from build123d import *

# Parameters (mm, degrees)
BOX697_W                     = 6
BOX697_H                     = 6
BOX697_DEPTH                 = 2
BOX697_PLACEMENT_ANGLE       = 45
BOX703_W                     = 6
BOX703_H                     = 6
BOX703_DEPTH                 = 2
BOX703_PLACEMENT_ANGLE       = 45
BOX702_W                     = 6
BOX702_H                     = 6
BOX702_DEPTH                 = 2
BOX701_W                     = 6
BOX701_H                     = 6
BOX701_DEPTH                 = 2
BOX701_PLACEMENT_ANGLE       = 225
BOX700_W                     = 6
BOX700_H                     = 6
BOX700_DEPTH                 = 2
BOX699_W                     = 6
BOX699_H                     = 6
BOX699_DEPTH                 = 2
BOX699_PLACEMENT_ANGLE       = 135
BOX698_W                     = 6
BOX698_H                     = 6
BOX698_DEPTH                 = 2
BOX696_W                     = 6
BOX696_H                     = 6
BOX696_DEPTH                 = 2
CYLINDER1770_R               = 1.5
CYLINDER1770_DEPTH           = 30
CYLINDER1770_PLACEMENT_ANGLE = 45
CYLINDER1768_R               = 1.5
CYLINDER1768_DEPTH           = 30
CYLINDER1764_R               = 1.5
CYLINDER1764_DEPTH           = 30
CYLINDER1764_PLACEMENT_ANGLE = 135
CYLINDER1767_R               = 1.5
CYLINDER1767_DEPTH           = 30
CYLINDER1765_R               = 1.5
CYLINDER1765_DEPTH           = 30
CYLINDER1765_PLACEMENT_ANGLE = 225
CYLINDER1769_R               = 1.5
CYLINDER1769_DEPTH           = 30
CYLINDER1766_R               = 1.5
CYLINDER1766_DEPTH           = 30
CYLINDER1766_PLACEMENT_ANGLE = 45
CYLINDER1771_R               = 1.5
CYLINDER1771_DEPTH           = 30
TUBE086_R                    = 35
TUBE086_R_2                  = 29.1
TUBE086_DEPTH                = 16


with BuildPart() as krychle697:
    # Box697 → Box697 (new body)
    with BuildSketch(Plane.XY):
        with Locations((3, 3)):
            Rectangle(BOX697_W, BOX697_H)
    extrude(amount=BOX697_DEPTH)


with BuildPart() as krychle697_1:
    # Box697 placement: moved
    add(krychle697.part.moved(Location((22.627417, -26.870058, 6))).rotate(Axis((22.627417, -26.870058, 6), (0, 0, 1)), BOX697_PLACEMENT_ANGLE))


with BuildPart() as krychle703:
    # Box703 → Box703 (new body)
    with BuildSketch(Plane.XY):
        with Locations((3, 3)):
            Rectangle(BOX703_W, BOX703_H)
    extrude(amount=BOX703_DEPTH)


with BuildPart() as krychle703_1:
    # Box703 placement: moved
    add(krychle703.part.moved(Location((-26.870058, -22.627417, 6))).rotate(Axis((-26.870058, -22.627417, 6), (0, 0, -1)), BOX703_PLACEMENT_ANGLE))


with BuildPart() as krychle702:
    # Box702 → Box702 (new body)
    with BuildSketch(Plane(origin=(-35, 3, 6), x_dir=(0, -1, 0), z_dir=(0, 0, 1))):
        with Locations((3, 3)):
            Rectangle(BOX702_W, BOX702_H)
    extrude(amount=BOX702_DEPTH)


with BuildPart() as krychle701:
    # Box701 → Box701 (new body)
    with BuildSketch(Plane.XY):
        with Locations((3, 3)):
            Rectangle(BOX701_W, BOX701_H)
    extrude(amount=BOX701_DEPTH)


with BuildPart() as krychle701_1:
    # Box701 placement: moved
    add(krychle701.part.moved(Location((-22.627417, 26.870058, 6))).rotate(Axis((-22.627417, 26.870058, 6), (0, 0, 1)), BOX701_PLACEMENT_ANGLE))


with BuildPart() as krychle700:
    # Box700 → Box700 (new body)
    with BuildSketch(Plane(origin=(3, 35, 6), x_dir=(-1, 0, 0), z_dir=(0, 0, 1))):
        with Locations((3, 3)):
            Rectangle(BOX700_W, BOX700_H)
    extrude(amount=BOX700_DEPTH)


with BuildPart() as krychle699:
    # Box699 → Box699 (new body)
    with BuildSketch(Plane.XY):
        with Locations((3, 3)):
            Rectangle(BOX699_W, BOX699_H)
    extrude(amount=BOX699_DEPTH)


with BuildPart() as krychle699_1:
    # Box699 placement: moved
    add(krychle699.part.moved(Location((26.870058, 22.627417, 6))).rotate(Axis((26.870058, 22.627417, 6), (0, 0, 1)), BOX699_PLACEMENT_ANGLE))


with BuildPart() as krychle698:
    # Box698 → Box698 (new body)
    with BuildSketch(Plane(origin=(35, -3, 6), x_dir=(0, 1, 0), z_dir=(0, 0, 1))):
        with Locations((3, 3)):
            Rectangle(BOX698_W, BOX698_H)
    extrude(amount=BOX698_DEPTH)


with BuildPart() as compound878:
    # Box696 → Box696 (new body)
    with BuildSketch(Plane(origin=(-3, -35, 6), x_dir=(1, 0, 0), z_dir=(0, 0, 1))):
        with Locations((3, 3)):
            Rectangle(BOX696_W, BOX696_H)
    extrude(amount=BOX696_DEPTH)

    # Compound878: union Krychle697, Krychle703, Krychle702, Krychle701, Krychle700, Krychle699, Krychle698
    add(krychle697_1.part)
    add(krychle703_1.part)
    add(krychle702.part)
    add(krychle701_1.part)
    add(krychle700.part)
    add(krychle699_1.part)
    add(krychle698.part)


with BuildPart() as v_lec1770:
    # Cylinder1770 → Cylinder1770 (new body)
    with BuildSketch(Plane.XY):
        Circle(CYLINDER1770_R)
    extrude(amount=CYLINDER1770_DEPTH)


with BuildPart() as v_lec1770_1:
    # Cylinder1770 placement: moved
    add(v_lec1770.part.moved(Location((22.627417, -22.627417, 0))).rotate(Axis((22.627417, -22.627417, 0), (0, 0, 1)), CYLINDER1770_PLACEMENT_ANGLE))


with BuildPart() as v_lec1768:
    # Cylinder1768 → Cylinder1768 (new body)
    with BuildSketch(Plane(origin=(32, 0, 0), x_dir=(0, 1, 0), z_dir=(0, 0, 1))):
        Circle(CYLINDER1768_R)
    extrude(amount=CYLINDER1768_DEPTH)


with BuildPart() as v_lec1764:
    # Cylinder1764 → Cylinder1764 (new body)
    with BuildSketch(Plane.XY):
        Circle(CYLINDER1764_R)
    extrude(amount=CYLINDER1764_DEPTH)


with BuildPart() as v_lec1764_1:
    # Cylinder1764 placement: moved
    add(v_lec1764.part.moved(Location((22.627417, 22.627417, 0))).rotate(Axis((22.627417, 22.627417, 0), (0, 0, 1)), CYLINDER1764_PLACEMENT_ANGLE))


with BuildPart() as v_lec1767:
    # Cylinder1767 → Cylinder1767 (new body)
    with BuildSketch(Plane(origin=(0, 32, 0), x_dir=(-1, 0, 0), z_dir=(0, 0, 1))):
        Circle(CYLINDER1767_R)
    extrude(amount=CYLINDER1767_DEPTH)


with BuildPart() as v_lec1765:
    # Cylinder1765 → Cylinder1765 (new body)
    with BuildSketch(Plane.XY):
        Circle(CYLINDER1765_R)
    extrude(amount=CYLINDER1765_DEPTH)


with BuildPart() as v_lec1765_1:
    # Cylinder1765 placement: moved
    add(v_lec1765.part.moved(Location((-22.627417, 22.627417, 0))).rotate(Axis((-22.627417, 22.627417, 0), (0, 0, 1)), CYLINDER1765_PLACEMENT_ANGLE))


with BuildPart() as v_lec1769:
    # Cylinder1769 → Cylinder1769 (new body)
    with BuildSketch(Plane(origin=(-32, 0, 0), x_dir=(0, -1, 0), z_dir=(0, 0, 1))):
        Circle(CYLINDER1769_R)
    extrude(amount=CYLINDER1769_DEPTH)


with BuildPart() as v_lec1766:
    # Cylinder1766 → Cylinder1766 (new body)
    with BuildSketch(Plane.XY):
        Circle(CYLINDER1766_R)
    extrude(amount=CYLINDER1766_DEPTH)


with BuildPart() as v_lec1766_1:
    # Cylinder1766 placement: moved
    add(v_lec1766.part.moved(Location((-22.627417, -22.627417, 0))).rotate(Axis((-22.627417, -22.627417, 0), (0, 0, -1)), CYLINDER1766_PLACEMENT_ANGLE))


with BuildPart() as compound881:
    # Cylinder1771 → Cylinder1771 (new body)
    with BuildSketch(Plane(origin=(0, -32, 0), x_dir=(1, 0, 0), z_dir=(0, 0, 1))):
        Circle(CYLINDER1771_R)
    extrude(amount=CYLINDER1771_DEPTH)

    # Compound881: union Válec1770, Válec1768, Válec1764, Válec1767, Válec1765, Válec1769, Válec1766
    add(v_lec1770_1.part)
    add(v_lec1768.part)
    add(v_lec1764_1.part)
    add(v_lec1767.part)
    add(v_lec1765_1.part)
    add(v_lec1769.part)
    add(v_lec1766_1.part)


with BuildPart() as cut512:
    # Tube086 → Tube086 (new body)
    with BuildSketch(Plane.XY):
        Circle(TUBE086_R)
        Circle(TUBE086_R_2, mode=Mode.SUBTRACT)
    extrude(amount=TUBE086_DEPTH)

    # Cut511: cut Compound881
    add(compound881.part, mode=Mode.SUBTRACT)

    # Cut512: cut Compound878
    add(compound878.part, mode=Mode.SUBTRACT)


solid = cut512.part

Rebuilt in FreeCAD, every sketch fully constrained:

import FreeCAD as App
import Part
import Sketcher

V = App.Vector


def add_polygon(sketch, points):
    """Adds a closed chain of lines whose ends are joined by coincident constraints."""
    first, n = sketch.GeometryCount, len(points)
    for a, b in zip(points, points[1:] + points[:1]):
        sketch.addGeometry(Part.LineSegment(App.Vector(*a, 0), App.Vector(*b, 0)), False)
    for i in range(n):
        sketch.addConstraint(Sketcher.Constraint("Coincident", first + i, 2, first + (i + 1) % n, 1))

doc = App.newDocument("Part")
body = doc.addObject("PartDesign::Body", "Body")

sketch1 = doc.addObject("Sketcher::SketchObject", "Sketch")
body.addObject(sketch1)
sketch1.AttachmentSupport = (doc.XY_Plane, [""])
sketch1.MapMode = "FlatFace"
add_polygon(sketch1, [(0, 6), (0, 0), (6, 0), (6, 6)])
sketch1.addConstraint([
    Sketcher.Constraint("Vertical", 0),
    Sketcher.Constraint("Horizontal", 1),
    Sketcher.Constraint("Vertical", 2),
    Sketcher.Constraint("Horizontal", 3),
    Sketcher.Constraint("Coincident", 0, 2, -1, 1),
    Sketcher.Constraint("Equal", 3, 0),
    Sketcher.Constraint("DistanceX", 1, 1, 1, 2, 6.0),
])
pad1 = doc.addObject("PartDesign::Pad", "Pad")
body.addObject(pad1)
pad1.Profile = sketch1
pad1.Length = 2
body2 = doc.addObject("PartDesign::Body", "Body001")
doc.recompute()

body.Placement = App.Placement(V(22.627417, -26.870058, 6), App.Rotation(V(0, 0, 1), 45))
boolean = doc.addObject("PartDesign::Boolean", "Boolean")
body2.addObject(boolean)
boolean.Type = "Fuse"
boolean.addObjects([body])
body3 = doc.addObject("PartDesign::Body", "Body002")

sketch2 = doc.addObject("Sketcher::SketchObject", "Sketch001")
body3.addObject(sketch2)
sketch2.AttachmentSupport = (doc.getObject("XY_Plane002"), [""])
sketch2.MapMode = "FlatFace"
add_polygon(sketch2, [(0, 6), (0, 0), (6, 0), (6, 6)])
sketch2.addConstraint([
    Sketcher.Constraint("Vertical", 0),
    Sketcher.Constraint("Horizontal", 1),
    Sketcher.Constraint("Vertical", 2),
    Sketcher.Constraint("Horizontal", 3),
    Sketcher.Constraint("Coincident", 0, 2, -1, 1),
    Sketcher.Constraint("Equal", 3, 0),
    Sketcher.Constraint("DistanceX", 1, 1, 1, 2, 6.0),
])
pad2 = doc.addObject("PartDesign::Pad", "Pad001")
body3.addObject(pad2)
pad2.Profile = sketch2
pad2.Length = 2
body4 = doc.addObject("PartDesign::Body", "Body003")
doc.recompute()

body3.Placement = App.Placement(V(-26.870058, -22.627417, 6), App.Rotation(V(0, 0, -1), 45))
boolean2 = doc.addObject("PartDesign::Boolean", "Boolean001")
body4.addObject(boolean2)
boolean2.Type = "Fuse"
boolean2.addObjects([body3])
body5 = doc.addObject("PartDesign::Body", "Body004")

sketch3 = doc.addObject("Sketcher::SketchObject", "Sketch002")
body5.addObject(sketch3)
sketch3.AttachmentSupport = (doc.getObject("XY_Plane004"), [""])
sketch3.MapMode = "FlatFace"
sketch3.AttachmentOffset = App.Placement(V(0, 0, 6), App.Rotation())
add_polygon(sketch3, [(-29, 3), (-35, 3), (-35, -3), (-29, -3)])
sketch3.addConstraint([
    Sketcher.Constraint("Horizontal", 0),
    Sketcher.Constraint("Vertical", 1),
    Sketcher.Constraint("Horizontal", 2),
    Sketcher.Constraint("Vertical", 3),
    Sketcher.Constraint("Equal", 2, 1),
    Sketcher.Constraint("DistanceX", 0, 2, 0, 1, 6.0),
    Sketcher.Constraint("DistanceX", 0, 2, -1, 1, 35.0),
    Sketcher.Constraint("DistanceY", -1, 1, 0, 2, 3.0),
])
pad3 = doc.addObject("PartDesign::Pad", "Pad002")
body5.addObject(pad3)
pad3.Profile = sketch3
pad3.Length = 2
body6 = doc.addObject("PartDesign::Body", "Body005")

sketch4 = doc.addObject("Sketcher::SketchObject", "Sketch003")
body6.addObject(sketch4)
sketch4.AttachmentSupport = (doc.getObject("XY_Plane005"), [""])
sketch4.MapMode = "FlatFace"
add_polygon(sketch4, [(0, 6), (0, 0), (6, 0), (6, 6)])
sketch4.addConstraint([
    Sketcher.Constraint("Vertical", 0),
    Sketcher.Constraint("Horizontal", 1),
    Sketcher.Constraint("Vertical", 2),
    Sketcher.Constraint("Horizontal", 3),
    Sketcher.Constraint("Coincident", 0, 2, -1, 1),
    Sketcher.Constraint("Equal", 3, 0),
    Sketcher.Constraint("DistanceX", 1, 1, 1, 2, 6.0),
])
pad4 = doc.addObject("PartDesign::Pad", "Pad003")
body6.addObject(pad4)
pad4.Profile = sketch4
pad4.Length = 2
body7 = doc.addObject("PartDesign::Body", "Body006")
doc.recompute()

body6.Placement = App.Placement(V(-22.627417, 26.870058, 6), App.Rotation(V(0, 0, 1), 225))
boolean3 = doc.addObject("PartDesign::Boolean", "Boolean002")
body7.addObject(boolean3)
boolean3.Type = "Fuse"
boolean3.addObjects([body6])
body8 = doc.addObject("PartDesign::Body", "Body007")

sketch5 = doc.addObject("Sketcher::SketchObject", "Sketch004")
body8.addObject(sketch5)
sketch5.AttachmentSupport = (doc.getObject("XY_Plane007"), [""])
sketch5.MapMode = "FlatFace"
sketch5.AttachmentOffset = App.Placement(V(0, 0, 6), App.Rotation())
add_polygon(sketch5, [(3, 29), (3, 35), (-3, 35), (-3, 29)])
sketch5.addConstraint([
    Sketcher.Constraint("Vertical", 0),
    Sketcher.Constraint("Horizontal", 1),
    Sketcher.Constraint("Vertical", 2),
    Sketcher.Constraint("Horizontal", 3),
    Sketcher.Constraint("Equal", 3, 0),
    Sketcher.Constraint("DistanceX", 1, 2, 1, 1, 6.0),
    Sketcher.Constraint("DistanceX", -1, 1, 0, 2, 3.0),
    Sketcher.Constraint("DistanceY", -1, 1, 0, 2, 35.0),
])
pad5 = doc.addObject("PartDesign::Pad", "Pad004")
body8.addObject(pad5)
pad5.Profile = sketch5
pad5.Length = 2
body9 = doc.addObject("PartDesign::Body", "Body008")

sketch6 = doc.addObject("Sketcher::SketchObject", "Sketch005")
body9.addObject(sketch6)
sketch6.AttachmentSupport = (doc.getObject("XY_Plane008"), [""])
sketch6.MapMode = "FlatFace"
add_polygon(sketch6, [(0, 6), (0, 0), (6, 0), (6, 6)])
sketch6.addConstraint([
    Sketcher.Constraint("Vertical", 0),
    Sketcher.Constraint("Horizontal", 1),
    Sketcher.Constraint("Vertical", 2),
    Sketcher.Constraint("Horizontal", 3),
    Sketcher.Constraint("Coincident", 0, 2, -1, 1),
    Sketcher.Constraint("Equal", 3, 0),
    Sketcher.Constraint("DistanceX", 1, 1, 1, 2, 6.0),
])
pad6 = doc.addObject("PartDesign::Pad", "Pad005")
body9.addObject(pad6)
pad6.Profile = sketch6
pad6.Length = 2
body10 = doc.addObject("PartDesign::Body", "Body009")
doc.recompute()

body9.Placement = App.Placement(V(26.870058, 22.627417, 6), App.Rotation(V(0, 0, 1), 135))
boolean4 = doc.addObject("PartDesign::Boolean", "Boolean003")
body10.addObject(boolean4)
boolean4.Type = "Fuse"
boolean4.addObjects([body9])
body11 = doc.addObject("PartDesign::Body", "Body010")

sketch7 = doc.addObject("Sketcher::SketchObject", "Sketch006")
body11.addObject(sketch7)
sketch7.AttachmentSupport = (doc.getObject("XY_Plane010"), [""])
sketch7.MapMode = "FlatFace"
sketch7.AttachmentOffset = App.Placement(V(0, 0, 6), App.Rotation())
add_polygon(sketch7, [(29, -3), (35, -3), (35, 3), (29, 3)])
sketch7.addConstraint([
    Sketcher.Constraint("Horizontal", 0),
    Sketcher.Constraint("Vertical", 1),
    Sketcher.Constraint("Horizontal", 2),
    Sketcher.Constraint("Vertical", 3),
    Sketcher.Constraint("Equal", 2, 1),
    Sketcher.Constraint("DistanceX", 0, 1, 0, 2, 6.0),
    Sketcher.Constraint("DistanceX", -1, 1, 0, 2, 35.0),
    Sketcher.Constraint("DistanceY", 0, 2, -1, 1, 3.0),
])
pad7 = doc.addObject("PartDesign::Pad", "Pad006")
body11.addObject(pad7)
pad7.Profile = sketch7
pad7.Length = 2
body12 = doc.addObject("PartDesign::Body", "Body011")
body12.AllowCompound = True

sketch8 = doc.addObject("Sketcher::SketchObject", "Sketch007")
body12.addObject(sketch8)
sketch8.AttachmentSupport = (doc.getObject("XY_Plane011"), [""])
sketch8.MapMode = "FlatFace"
sketch8.AttachmentOffset = App.Placement(V(0, 0, 6), App.Rotation())
add_polygon(sketch8, [(-3, -29), (-3, -35), (3, -35), (3, -29)])
sketch8.addConstraint([
    Sketcher.Constraint("Vertical", 0),
    Sketcher.Constraint("Horizontal", 1),
    Sketcher.Constraint("Vertical", 2),
    Sketcher.Constraint("Horizontal", 3),
    Sketcher.Constraint("Equal", 3, 0),
    Sketcher.Constraint("DistanceX", 1, 1, 1, 2, 6.0),
    Sketcher.Constraint("DistanceX", 0, 2, -1, 1, 3.0),
    Sketcher.Constraint("DistanceY", 0, 2, -1, 1, 35.0),
])
pad8 = doc.addObject("PartDesign::Pad", "Pad007")
body12.addObject(pad8)
pad8.Profile = sketch8
pad8.Length = 2
doc.recompute()

boolean5 = doc.addObject("PartDesign::Boolean", "Boolean004")
body12.addObject(boolean5)
boolean5.Type = "Fuse"
boolean5.addObjects([body2])
doc.recompute()

boolean6 = doc.addObject("PartDesign::Boolean", "Boolean005")
body12.addObject(boolean6)
boolean6.Type = "Fuse"
boolean6.addObjects([body4])
doc.recompute()

boolean7 = doc.addObject("PartDesign::Boolean", "Boolean006")
body12.addObject(boolean7)
boolean7.Type = "Fuse"
boolean7.addObjects([body5])
doc.recompute()

boolean8 = doc.addObject("PartDesign::Boolean", "Boolean007")
body12.addObject(boolean8)
boolean8.Type = "Fuse"
boolean8.addObjects([body7])
doc.recompute()

boolean9 = doc.addObject("PartDesign::Boolean", "Boolean008")
body12.addObject(boolean9)
boolean9.Type = "Fuse"
boolean9.addObjects([body8])
doc.recompute()

boolean10 = doc.addObject("PartDesign::Boolean", "Boolean009")
body12.addObject(boolean10)
boolean10.Type = "Fuse"
boolean10.addObjects([body10])
doc.recompute()

boolean11 = doc.addObject("PartDesign::Boolean", "Boolean010")
body12.addObject(boolean11)
boolean11.Type = "Fuse"
boolean11.addObjects([body11])
body13 = doc.addObject("PartDesign::Body", "Body012")

sketch9 = doc.addObject("Sketcher::SketchObject", "Sketch008")
body13.addObject(sketch9)
sketch9.AttachmentSupport = (doc.getObject("XY_Plane012"), [""])
sketch9.MapMode = "FlatFace"
sketch9.addGeometry(Part.Circle(V(0, 0, 0), V(0, 0, 1), 1.5), False)
sketch9.addConstraint([
    Sketcher.Constraint("Coincident", 0, 3, -1, 1),
    Sketcher.Constraint("Diameter", 0, 3.0),
])
pad9 = doc.addObject("PartDesign::Pad", "Pad008")
body13.addObject(pad9)
pad9.Profile = sketch9
pad9.Length = 30
body14 = doc.addObject("PartDesign::Body", "Body013")
doc.recompute()

body13.Placement = App.Placement(V(22.627417, -22.627417, 0), App.Rotation(V(0, 0, 1), 45))
boolean12 = doc.addObject("PartDesign::Boolean", "Boolean011")
body14.addObject(boolean12)
boolean12.Type = "Fuse"
boolean12.addObjects([body13])
body15 = doc.addObject("PartDesign::Body", "Body014")

sketch10 = doc.addObject("Sketcher::SketchObject", "Sketch009")
body15.addObject(sketch10)
sketch10.AttachmentSupport = (doc.getObject("XY_Plane014"), [""])
sketch10.MapMode = "FlatFace"
sketch10.addGeometry(Part.Circle(V(32, 0, 0), V(0, 0, 1), 1.5), False)
sketch10.addConstraint([
    Sketcher.Constraint("PointOnObject", 0, 3, -1),
    Sketcher.Constraint("Diameter", 0, 3.0),
    Sketcher.Constraint("DistanceX", -1, 1, 0, 3, 32.0),
])
pad10 = doc.addObject("PartDesign::Pad", "Pad009")
body15.addObject(pad10)
pad10.Profile = sketch10
pad10.Length = 30
body16 = doc.addObject("PartDesign::Body", "Body015")

sketch11 = doc.addObject("Sketcher::SketchObject", "Sketch010")
body16.addObject(sketch11)
sketch11.AttachmentSupport = (doc.getObject("XY_Plane015"), [""])
sketch11.MapMode = "FlatFace"
sketch11.addGeometry(Part.Circle(V(0, 0, 0), V(0, 0, 1), 1.5), False)
sketch11.addConstraint([
    Sketcher.Constraint("Coincident", 0, 3, -1, 1),
    Sketcher.Constraint("Diameter", 0, 3.0),
])
pad11 = doc.addObject("PartDesign::Pad", "Pad010")
body16.addObject(pad11)
pad11.Profile = sketch11
pad11.Length = 30
body17 = doc.addObject("PartDesign::Body", "Body016")
doc.recompute()

body16.Placement = App.Placement(V(22.627417, 22.627417, 0), App.Rotation(V(0, 0, 1), 135))
boolean13 = doc.addObject("PartDesign::Boolean", "Boolean012")
body17.addObject(boolean13)
boolean13.Type = "Fuse"
boolean13.addObjects([body16])
body18 = doc.addObject("PartDesign::Body", "Body017")

sketch12 = doc.addObject("Sketcher::SketchObject", "Sketch011")
body18.addObject(sketch12)
sketch12.AttachmentSupport = (doc.getObject("XY_Plane017"), [""])
sketch12.MapMode = "FlatFace"
sketch12.addGeometry(Part.Circle(V(0, 32, 0), V(0, 0, 1), 1.5), False)
sketch12.addConstraint([
    Sketcher.Constraint("PointOnObject", 0, 3, -2),
    Sketcher.Constraint("Diameter", 0, 3.0),
    Sketcher.Constraint("DistanceY", -1, 1, 0, 3, 32.0),
])
pad12 = doc.addObject("PartDesign::Pad", "Pad011")
body18.addObject(pad12)
pad12.Profile = sketch12
pad12.Length = 30
body19 = doc.addObject("PartDesign::Body", "Body018")

sketch13 = doc.addObject("Sketcher::SketchObject", "Sketch012")
body19.addObject(sketch13)
sketch13.AttachmentSupport = (doc.getObject("XY_Plane018"), [""])
sketch13.MapMode = "FlatFace"
sketch13.addGeometry(Part.Circle(V(0, 0, 0), V(0, 0, 1), 1.5), False)
sketch13.addConstraint([
    Sketcher.Constraint("Coincident", 0, 3, -1, 1),
    Sketcher.Constraint("Diameter", 0, 3.0),
])
pad13 = doc.addObject("PartDesign::Pad", "Pad012")
body19.addObject(pad13)
pad13.Profile = sketch13
pad13.Length = 30
body20 = doc.addObject("PartDesign::Body", "Body019")
doc.recompute()

body19.Placement = App.Placement(V(-22.627417, 22.627417, 0), App.Rotation(V(0, 0, 1), 225))
boolean14 = doc.addObject("PartDesign::Boolean", "Boolean013")
body20.addObject(boolean14)
boolean14.Type = "Fuse"
boolean14.addObjects([body19])
body21 = doc.addObject("PartDesign::Body", "Body020")

sketch14 = doc.addObject("Sketcher::SketchObject", "Sketch013")
body21.addObject(sketch14)
sketch14.AttachmentSupport = (doc.getObject("XY_Plane020"), [""])
sketch14.MapMode = "FlatFace"
sketch14.addGeometry(Part.Circle(V(-32, 0, 0), V(0, 0, 1), 1.5), False)
sketch14.addConstraint([
    Sketcher.Constraint("PointOnObject", 0, 3, -1),
    Sketcher.Constraint("Diameter", 0, 3.0),
    Sketcher.Constraint("DistanceX", 0, 3, -1, 1, 32.0),
])
pad14 = doc.addObject("PartDesign::Pad", "Pad013")
body21.addObject(pad14)
pad14.Profile = sketch14
pad14.Length = 30
body22 = doc.addObject("PartDesign::Body", "Body021")

sketch15 = doc.addObject("Sketcher::SketchObject", "Sketch014")
body22.addObject(sketch15)
sketch15.AttachmentSupport = (doc.getObject("XY_Plane021"), [""])
sketch15.MapMode = "FlatFace"
sketch15.addGeometry(Part.Circle(V(0, 0, 0), V(0, 0, 1), 1.5), False)
sketch15.addConstraint([
    Sketcher.Constraint("Coincident", 0, 3, -1, 1),
    Sketcher.Constraint("Diameter", 0, 3.0),
])
pad15 = doc.addObject("PartDesign::Pad", "Pad014")
body22.addObject(pad15)
pad15.Profile = sketch15
pad15.Length = 30
body23 = doc.addObject("PartDesign::Body", "Body022")
doc.recompute()

body22.Placement = App.Placement(V(-22.627417, -22.627417, 0), App.Rotation(V(0, 0, -1), 45))
boolean15 = doc.addObject("PartDesign::Boolean", "Boolean014")
body23.addObject(boolean15)
boolean15.Type = "Fuse"
boolean15.addObjects([body22])
body24 = doc.addObject("PartDesign::Body", "Body023")
body24.AllowCompound = True

sketch16 = doc.addObject("Sketcher::SketchObject", "Sketch015")
body24.addObject(sketch16)
sketch16.AttachmentSupport = (doc.getObject("XY_Plane023"), [""])
sketch16.MapMode = "FlatFace"
sketch16.addGeometry(Part.Circle(V(0, -32, 0), V(0, 0, 1), 1.5), False)
sketch16.addConstraint([
    Sketcher.Constraint("PointOnObject", 0, 3, -2),
    Sketcher.Constraint("Diameter", 0, 3.0),
    Sketcher.Constraint("DistanceY", 0, 3, -1, 1, 32.0),
])
pad16 = doc.addObject("PartDesign::Pad", "Pad015")
body24.addObject(pad16)
pad16.Profile = sketch16
pad16.Length = 30
doc.recompute()

boolean16 = doc.addObject("PartDesign::Boolean", "Boolean015")
body24.addObject(boolean16)
boolean16.Type = "Fuse"
boolean16.addObjects([body14])
doc.recompute()

boolean17 = doc.addObject("PartDesign::Boolean", "Boolean016")
body24.addObject(boolean17)
boolean17.Type = "Fuse"
boolean17.addObjects([body15])
doc.recompute()

boolean18 = doc.addObject("PartDesign::Boolean", "Boolean017")
body24.addObject(boolean18)
boolean18.Type = "Fuse"
boolean18.addObjects([body17])
doc.recompute()

boolean19 = doc.addObject("PartDesign::Boolean", "Boolean018")
body24.addObject(boolean19)
boolean19.Type = "Fuse"
boolean19.addObjects([body18])
doc.recompute()

boolean20 = doc.addObject("PartDesign::Boolean", "Boolean019")
body24.addObject(boolean20)
boolean20.Type = "Fuse"
boolean20.addObjects([body20])
doc.recompute()

boolean21 = doc.addObject("PartDesign::Boolean", "Boolean020")
body24.addObject(boolean21)
boolean21.Type = "Fuse"
boolean21.addObjects([body21])
doc.recompute()

boolean22 = doc.addObject("PartDesign::Boolean", "Boolean021")
body24.addObject(boolean22)
boolean22.Type = "Fuse"
boolean22.addObjects([body23])
body25 = doc.addObject("PartDesign::Body", "Body024")

sketch17 = doc.addObject("Sketcher::SketchObject", "Sketch016")
body25.addObject(sketch17)
sketch17.AttachmentSupport = (doc.getObject("XY_Plane024"), [""])
sketch17.MapMode = "FlatFace"
sketch17.addGeometry([
    Part.Circle(V(0, 0, 0), V(0, 0, 1), 35),
    Part.Circle(V(0, 0, 0), V(0, 0, 1), 29),
], False)
sketch17.addConstraint([
    Sketcher.Constraint("Coincident", 0, 3, -1, 1),
    Sketcher.Constraint("Coincident", 1, 3, -1, 1),
    Sketcher.Constraint("Diameter", 0, 70.0),
    Sketcher.Constraint("Diameter", 1, 58.2),
])
pad17 = doc.addObject("PartDesign::Pad", "Pad016")
body25.addObject(pad17)
pad17.Profile = sketch17
pad17.Length = 16
doc.recompute()

boolean23 = doc.addObject("PartDesign::Boolean", "Boolean022")
body25.addObject(boolean23)
boolean23.Type = "Cut"
boolean23.addObjects([body24])
doc.recompute()

boolean24 = doc.addObject("PartDesign::Boolean", "Boolean023")
body25.addObject(boolean24)
boolean24.Type = "Cut"
boolean24.addObjects([body12])

doc.recompute()
